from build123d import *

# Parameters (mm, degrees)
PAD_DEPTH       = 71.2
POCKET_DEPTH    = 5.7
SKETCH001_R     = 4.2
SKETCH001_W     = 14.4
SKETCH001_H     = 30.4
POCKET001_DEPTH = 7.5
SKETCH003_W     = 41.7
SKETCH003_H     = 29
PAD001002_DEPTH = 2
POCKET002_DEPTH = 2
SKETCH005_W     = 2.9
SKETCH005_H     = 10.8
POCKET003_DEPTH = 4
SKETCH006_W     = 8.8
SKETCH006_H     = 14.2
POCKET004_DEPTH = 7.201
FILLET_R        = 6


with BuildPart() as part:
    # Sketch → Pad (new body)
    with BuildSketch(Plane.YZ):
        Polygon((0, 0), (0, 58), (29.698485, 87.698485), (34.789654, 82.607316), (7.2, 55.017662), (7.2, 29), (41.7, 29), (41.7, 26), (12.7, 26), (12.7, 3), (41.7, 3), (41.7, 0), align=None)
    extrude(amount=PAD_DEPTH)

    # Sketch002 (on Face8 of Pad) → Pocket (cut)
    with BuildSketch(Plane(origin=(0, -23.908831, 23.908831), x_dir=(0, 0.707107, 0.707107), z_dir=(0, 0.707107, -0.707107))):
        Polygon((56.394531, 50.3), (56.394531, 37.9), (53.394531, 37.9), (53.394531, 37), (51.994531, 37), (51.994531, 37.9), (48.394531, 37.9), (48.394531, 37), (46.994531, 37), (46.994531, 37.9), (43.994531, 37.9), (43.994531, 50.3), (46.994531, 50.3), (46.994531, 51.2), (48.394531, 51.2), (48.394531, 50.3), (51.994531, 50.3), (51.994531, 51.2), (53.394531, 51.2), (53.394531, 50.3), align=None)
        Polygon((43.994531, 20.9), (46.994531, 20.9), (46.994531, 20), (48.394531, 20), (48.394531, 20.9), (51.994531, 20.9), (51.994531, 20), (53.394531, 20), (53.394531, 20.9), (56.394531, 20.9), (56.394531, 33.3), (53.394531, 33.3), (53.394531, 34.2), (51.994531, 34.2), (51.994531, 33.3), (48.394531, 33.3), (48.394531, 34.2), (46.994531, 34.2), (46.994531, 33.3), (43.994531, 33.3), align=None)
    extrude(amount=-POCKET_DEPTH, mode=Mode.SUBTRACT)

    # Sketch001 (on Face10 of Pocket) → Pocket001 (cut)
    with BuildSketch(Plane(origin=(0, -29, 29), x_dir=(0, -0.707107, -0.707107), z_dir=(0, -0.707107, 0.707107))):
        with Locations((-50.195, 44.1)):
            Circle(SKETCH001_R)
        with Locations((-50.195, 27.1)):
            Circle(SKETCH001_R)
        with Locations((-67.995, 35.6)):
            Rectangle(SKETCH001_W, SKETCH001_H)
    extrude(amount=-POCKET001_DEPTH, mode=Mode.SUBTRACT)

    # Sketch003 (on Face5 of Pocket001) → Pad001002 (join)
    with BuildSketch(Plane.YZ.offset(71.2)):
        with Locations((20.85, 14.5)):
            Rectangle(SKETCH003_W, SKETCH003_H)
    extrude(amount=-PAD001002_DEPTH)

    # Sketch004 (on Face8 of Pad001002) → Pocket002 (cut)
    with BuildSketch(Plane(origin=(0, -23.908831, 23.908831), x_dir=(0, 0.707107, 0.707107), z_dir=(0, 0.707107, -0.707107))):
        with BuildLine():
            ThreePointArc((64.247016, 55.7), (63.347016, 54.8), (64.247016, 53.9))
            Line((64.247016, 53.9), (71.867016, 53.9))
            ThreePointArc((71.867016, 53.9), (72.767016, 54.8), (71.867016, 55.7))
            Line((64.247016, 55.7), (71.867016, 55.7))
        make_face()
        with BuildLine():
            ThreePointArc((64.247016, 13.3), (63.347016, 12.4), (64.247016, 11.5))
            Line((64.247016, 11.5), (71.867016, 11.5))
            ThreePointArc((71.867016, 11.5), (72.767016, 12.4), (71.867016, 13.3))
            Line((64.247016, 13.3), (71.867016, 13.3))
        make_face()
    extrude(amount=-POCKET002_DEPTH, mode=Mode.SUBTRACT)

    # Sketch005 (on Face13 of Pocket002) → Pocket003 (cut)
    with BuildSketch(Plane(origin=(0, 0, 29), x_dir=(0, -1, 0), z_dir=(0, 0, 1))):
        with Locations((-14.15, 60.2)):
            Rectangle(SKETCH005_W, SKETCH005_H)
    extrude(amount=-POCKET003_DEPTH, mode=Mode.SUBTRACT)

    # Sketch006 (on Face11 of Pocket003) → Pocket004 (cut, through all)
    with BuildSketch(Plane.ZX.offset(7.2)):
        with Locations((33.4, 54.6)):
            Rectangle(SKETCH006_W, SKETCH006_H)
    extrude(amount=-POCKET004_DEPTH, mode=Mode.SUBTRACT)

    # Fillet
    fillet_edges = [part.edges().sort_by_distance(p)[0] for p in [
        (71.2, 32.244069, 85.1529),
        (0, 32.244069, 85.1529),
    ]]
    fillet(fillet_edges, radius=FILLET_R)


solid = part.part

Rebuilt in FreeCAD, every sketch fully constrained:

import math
import FreeCAD as App
import Part
import Sketcher

V = App.Vector
Q = App.Units.Quantity


def edges_at(feature, points):
    """Names of the edges that pass closest to the given points."""
    edges = feature.Shape.Edges
    near = lambda p: min(range(len(edges)), key=lambda i: edges[i].distToShape(Part.Vertex(*p))[0])
    return sorted({f"Edge{near(p) + 1}" for p in points})


def add_polygon(sketch, points):
    """Adds a closed chain of lines whose ends are joined by coincident constraints."""
    first, n = sketch.GeometryCount, len(points)
    for a, b in zip(points, points[1:] + points[:1]):
        sketch.addGeometry(Part.LineSegment(App.Vector(*a, 0), App.Vector(*b, 0)), False)
    for i in range(n):
        sketch.addConstraint(Sketcher.Constraint("Coincident", first + i, 2, first + (i + 1) % n, 1))

doc = App.newDocument("Part")
body = doc.addObject("PartDesign::Body", "Body")

# Sketch on YZ plane
sketch1 = doc.addObject("Sketcher::SketchObject", "Sketch")
body.addObject(sketch1)
sketch1.AttachmentSupport = (doc.YZ_Plane, [""])
sketch1.MapMode = "FlatFace"
add_polygon(sketch1, [(0, 58), (0, 0), (41.7, 0), (41.7, 3), (12.7, 3), (12.7, 26), (41.7, 26), (41.7, 29), (7.2, 29), (7.2, 55), (34.8, 82.6), (29.7, 87.7)])  # lines 0-11
sketch1.addConstraint([
    Sketcher.Constraint("Vertical", 0),
    Sketcher.Constraint("Horizontal", 1),
    Sketcher.Constraint("Vertical", 2),
    Sketcher.Constraint("Horizontal", 3),
    Sketcher.Constraint("Vertical", 4),
    Sketcher.Constraint("Horizontal", 5),
    Sketcher.Constraint("Vertical", 6),
    Sketcher.Constraint("Horizontal", 7),
    Sketcher.Constraint("Vertical", 8),
    Sketcher.Constraint("Coincident", 0, 2, -1, 1),
    Sketcher.Constraint("Perpendicular", 9, 10),
    Sketcher.Constraint("Perpendicular", 10, 11),
    Sketcher.Constraint("Vertical", 2, 2, 5, 2),
    Sketcher.Constraint("Equal", 2, 6),
    Sketcher.Constraint("DistanceX", 3, 2, 3, 1, 29.0),
    Sketcher.Constraint("DistanceY", 0, 2, 0, 1, 58.0),
    Sketcher.Constraint("DistanceY", 2, 1, 2, 2, 3.0),
    Sketcher.Constraint("DistanceY", 4, 1, 4, 2, 23.0),
    Sketcher.Constraint("Angle", 9, Q("45 deg")),
    Sketcher.Constraint("Distance", 11, 42.0),
    Sketcher.Constraint("DistanceX", 1, 1, 1, 2, 41.7),
    Sketcher.Constraint("DistanceX", 7, 2, 7, 1, 34.5),
    Sketcher.Constraint("Distance", 10, 7.2),
])
pad1 = doc.addObject("PartDesign::Pad", "Pad")
body.addObject(pad1)
pad1.Profile = sketch1
pad1.Length = 71.2

# Sketch on an angled plane
sketch2 = doc.addObject("Sketcher::SketchObject", "Sketch001")
body.addObject(sketch2)
sketch2.Placement = App.Placement(V(0, -23.908831, 23.908831), App.Rotation(V(0, 0.707106781, 0.707106781), V(0.999999999, 0, 0), V(0, 0.707106781, -0.707106781), "ZXY"))
add_polygon(sketch2, [(56.4, 37.9), (56.4, 50.3), (53.4, 50.3), (53.4, 51.2), (52, 51.2), (52, 50.3), (48.4, 50.3), (48.4, 51.2), (47, 51.2), (47, 50.3), (44, 50.3), (44, 37.9), (47, 37.9), (47, 37), (48.4, 37), (48.4, 37.9), (52, 37.9), (52, 37), (53.4, 37), (53.4, 37.9)])  # lines 0-19
add_polygon(sketch2, [(44, 20.9), (47, 20.9), (47, 20), (48.4, 20), (48.4, 20.9), (52, 20.9), (52, 20), (53.4, 20), (53.4, 20.9), (56.4, 20.9), (56.4, 33.3), (53.4, 33.3), (53.4, 34.2), (52, 34.2), (52, 33.3), (48.4, 33.3), (48.4, 34.2), (47, 34.2), (47, 33.3), (44, 33.3)])  # lines 20-39
sketch2.addConstraint([
    Sketcher.Constraint("Vertical", 0),
    Sketcher.Constraint("Horizontal", 1),
    Sketcher.Constraint("Vertical", 2),
    Sketcher.Constraint("Horizontal", 3),
    Sketcher.Constraint("Vertical", 4),
    Sketcher.Constraint("Horizontal", 5),
    Sketcher.Constraint("Vertical", 6),
    Sketcher.Constraint("Horizontal", 7),
    Sketcher.Constraint("Vertical", 8),
    Sketcher.Constraint("Horizontal", 9),
    Sketcher.Constraint("Vertical", 10),
    Sketcher.Constraint("Horizontal", 11),
    Sketcher.Constraint("Vertical", 12),
    Sketcher.Constraint("Horizontal", 13),
    Sketcher.Constraint("Vertical", 14),
    Sketcher.Constraint("Horizontal", 15),
    Sketcher.Constraint("Vertical", 16),
    Sketcher.Constraint("Horizontal", 17),
    Sketcher.Constraint("Vertical", 18),
    Sketcher.Constraint("Horizontal", 19),
    Sketcher.Constraint("Horizontal", 20),
    Sketcher.Constraint("Vertical", 21),
    Sketcher.Constraint("Horizontal", 22),
    Sketcher.Constraint("Vertical", 23),
    Sketcher.Constraint("Horizontal", 24),
    Sketcher.Constraint("Vertical", 25),
    Sketcher.Constraint("Horizontal", 26),
    Sketcher.Constraint("Vertical", 27),
    Sketcher.Constraint("Horizontal", 28),
    Sketcher.Constraint("Vertical", 29),
    Sketcher.Constraint("Horizontal", 30),
    Sketcher.Constraint("Vertical", 31),
    Sketcher.Constraint("Horizontal", 32),
    Sketcher.Constraint("Vertical", 33),
    Sketcher.Constraint("Horizontal", 34),
    Sketcher.Constraint("Vertical", 35),
    Sketcher.Constraint("Horizontal", 36),
    Sketcher.Constraint("Vertical", 37),
    Sketcher.Constraint("Horizontal", 38),
    Sketcher.Constraint("Vertical", 39),
    Sketcher.Constraint("Horizontal", 1, 2, 4, 2),
    Sketcher.Constraint("Horizontal", 3, 2, 6, 2),
    Sketcher.Constraint("Horizontal", 5, 2, 8, 2),
    Sketcher.Constraint("Horizontal", 11, 2, 14, 2),
    Sketcher.Constraint("Horizontal", 13, 2, 16, 2),
    Sketcher.Constraint("Horizontal", 15, 2, 18, 2),
    Sketcher.Constraint("Horizontal", 20, 2, 23, 2),
    Sketcher.Constraint("Horizontal", 22, 2, 25, 2),
    Sketcher.Constraint("Horizontal", 24, 2, 27, 2),
    Sketcher.Constraint("Horizontal", 30, 2, 33, 2),
    Sketcher.Constraint("Horizontal", 32, 2, 35, 2),
    Sketcher.Constraint("Horizontal", 34, 2, 37, 2),
    Sketcher.Constraint("Vertical", 8, 2, 11, 2),
    Sketcher.Constraint("Vertical", 6, 2, 13, 2),
    Sketcher.Constraint("Vertical", 4, 2, 15, 2),
    Sketcher.Constraint("Vertical", 2, 2, 17, 2),
    Sketcher.Constraint("Vertical", 12, 2, 20, 2),
    Sketcher.Constraint("Vertical", 14, 2, 22, 2),
    Sketcher.Constraint("Vertical", 16, 2, 24, 2),
    Sketcher.Constraint("Vertical", 18, 2, 26, 2),
    Sketcher.Constraint("Vertical", 19, 2, 28, 2),
    Sketcher.Constraint("Vertical", 27, 2, 30, 2),
    Sketcher.Constraint("Vertical", 25, 2, 32, 2),
    Sketcher.Constraint("Vertical", 23, 2, 34, 2),
    Sketcher.Constraint("Vertical", 21, 2, 36, 2),
    Sketcher.Constraint("Vertical", 10, 2, 38, 2),
    Sketcher.Constraint("Equal", 3, 7),
    Sketcher.Constraint("Equal", 1, 9),
    Sketcher.Constraint("Equal", 8, 12),
    Sketcher.Constraint("Equal", 18, 21),
    Sketcher.Constraint("Equal", 10, 29),
    Sketcher.Constraint("Equal", 27, 31),
    Sketcher.Constraint("DistanceX", 1, 2, 1, 1, 3.0),
    Sketcher.Constraint("DistanceX", 3, 2, 3, 1, 1.4),
    Sketcher.Constraint("DistanceX", 5, 2, 5, 1, 3.6),
    Sketcher.Constraint("DistanceY", 0, 1, 0, 2, 12.4),
    Sketcher.Constraint("DistanceY", 2, 1, 2, 2, 0.9),
    Sketcher.Constraint("DistanceY", -1, 1, 12, 2, 37.0),
    Sketcher.Constraint("DistanceY", -1, 1, 21, 2, 20.0),
    Sketcher.Constraint("DistanceX", -1, 1, 0, 2, 56.394531),
])
pocket1 = doc.addObject("PartDesign::Pocket", "Pocket")
body.addObject(pocket1)
pocket1.Profile = sketch2
pocket1.Length = 5.7

# Sketch on an angled plane
sketch3 = doc.addObject("Sketcher::SketchObject", "Sketch002")
body.addObject(sketch3)
sketch3.Placement = App.Placement(V(0, -29, 29), App.Rotation(V(0, -0.707106781, -0.707106781), V(0.999999999, 0, 0), V(0, -0.707106781, 0.707106781), "ZXY"))
sketch3.addGeometry(Part.Circle(V(-50.2, 44.1, 0), V(0, 0, 1), 4.2), False)  # 0
sketch3.addGeometry(Part.Circle(V(-50.2, 27.1, 0), V(0, 0, 1), 4.2), False)  # 1
add_polygon(sketch3, [(-75.2, 50.8), (-75.2, 20.4), (-60.8, 20.4), (-60.8, 50.8)])  # lines 2-5
sketch3.addConstraint([
    Sketcher.Constraint("Vertical", 2),
    Sketcher.Constraint("Horizontal", 3),
    Sketcher.Constraint("Vertical", 4),
    Sketcher.Constraint("Horizontal", 5),
    Sketcher.Constraint("Equal", 0, 1),
    Sketcher.Constraint("Vertical", 0, 3, 1, 3),
    Sketcher.Constraint("Diameter", 0, 8.4),
    Sketcher.Constraint("DistanceX", 3, 1, 3, 2, 14.4),
    Sketcher.Constraint("DistanceY", 2, 2, 2, 1, 30.4),
    Sketcher.Constraint("DistanceY", 1, 3, 0, 3, 17.0),
    Sketcher.Constraint("DistanceX", 2, 2, 1, 3, 25.0),
    Sketcher.Constraint("DistanceY", -1, 1, 0, 3, 44.1),
    Sketcher.Constraint("DistanceY", -1, 1, 2, 2, 20.4),
    Sketcher.Constraint("DistanceX", 0, 3, -1, 1, 50.195),
])
pocket2 = doc.addObject("PartDesign::Pocket", "Pocket001")
body.addObject(pocket2)
pocket2.Profile = sketch3
pocket2.Length = 7.5

# Sketch on YZ plane
sketch4 = doc.addObject("Sketcher::SketchObject", "Sketch003")
body.addObject(sketch4)
sketch4.AttachmentSupport = (doc.YZ_Plane, [""])
sketch4.MapMode = "FlatFace"
sketch4.AttachmentOffset = App.Placement(V(0, 0, 71.2), App.Rotation())
add_polygon(sketch4, [(0, 29), (0, 0), (42, 0), (42, 29)])  # lines 0-3
sketch4.addConstraint([
    Sketcher.Constraint("Vertical", 0),
    Sketcher.Constraint("Horizontal", 1),
    Sketcher.Constraint("Vertical", 2),
    Sketcher.Constraint("Horizontal", 3),
    Sketcher.Constraint("Coincident", 0, 2, -1, 1),
    Sketcher.Constraint("DistanceY", 0, 2, 0, 1, 29.0),
    Sketcher.Constraint("DistanceX", 1, 1, 1, 2, 41.7),
])
pad2 = doc.addObject("PartDesign::Pad", "Pad001")
body.addObject(pad2)
pad2.Profile = sketch4
pad2.Length = 2
pad2.Reversed = True

# Sketch on an angled plane
sketch5 = doc.addObject("Sketcher::SketchObject", "Sketch004")
body.addObject(sketch5)
sketch5.Placement = App.Placement(V(0, -23.908831, 23.908831), App.Rotation(V(0, 0.707106781, 0.707106781), V(0.999999999, 0, 0), V(0, 0.707106781, -0.707106781), "ZXY"))
sketch5.addGeometry([
    Part.ArcOfCircle(Part.Circle(V(64.2, 54.8, 0), V(0, 0, 1), 0.9), math.radians(90), math.radians(270)),  # 0
    Part.LineSegment(V(64.2, 53.9, 0), V(71.9, 53.9, 0)),  # 1
    Part.ArcOfCircle(Part.Circle(V(71.9, 54.8, 0), V(0, 0, 1), 0.9), math.radians(-90), math.radians(90)),  # 2
    Part.LineSegment(V(71.9, 55.7, 0), V(64.2, 55.7, 0)),  # 3
    Part.ArcOfCircle(Part.Circle(V(64.2, 12.4, 0), V(0, 0, 1), 0.9), math.radians(90), math.radians(270)),  # 4
    Part.LineSegment(V(64.2, 11.5, 0), V(71.9, 11.5, 0)),  # 5
    Part.ArcOfCircle(Part.Circle(V(71.9, 12.4, 0), V(0, 0, 1), 0.9), math.radians(-90), math.radians(90)),  # 6
    Part.LineSegment(V(71.9, 13.3, 0), V(64.2, 13.3, 0)),  # 7
], False)
sketch5.addConstraint([
    Sketcher.Constraint("Tangent", 0, 2, 1, 1),
    Sketcher.Constraint("Tangent", 1, 2, 2, 1),
    Sketcher.Constraint("Tangent", 2, 2, 3, 1),
    Sketcher.Constraint("Tangent", 3, 2, 0, 1),
    Sketcher.Constraint("Tangent", 4, 2, 5, 1),
    Sketcher.Constraint("Tangent", 5, 2, 6, 1),
    Sketcher.Constraint("Tangent", 6, 2, 7, 1),
    Sketcher.Constraint("Tangent", 7, 2, 4, 1),
    Sketcher.Constraint("Horizontal", 1),
    Sketcher.Constraint("Horizontal", 3),
    Sketcher.Constraint("Horizontal", 5),
    Sketcher.Constraint("Horizontal", 7),
    Sketcher.Constraint("Equal", 2, 4),
    Sketcher.Constraint("Vertical", 0, 3, 4, 3),
    Sketcher.Constraint("Vertical", 2, 3, 6, 3),
    Sketcher.Constraint("Radius", 0, 0.9),
    Sketcher.Constraint("DistanceX", 1, 1, 1, 2, 7.62),
    Sketcher.Constraint("DistanceY", -1, 1, 0, 3, 54.8),
    Sketcher.Constraint("DistanceY", -1, 1, 4, 3, 12.4),
    Sketcher.Constraint("DistanceX", -1, 1, 0, 3, 64.247016),
])
pocket3 = doc.addObject("PartDesign::Pocket", "Pocket002")
body.addObject(pocket3)
pocket3.Profile = sketch5
pocket3.Length = 2

# Sketch on XY plane
sketch6 = doc.addObject("Sketcher::SketchObject", "Sketch005")
body.addObject(sketch6)
sketch6.AttachmentSupport = (doc.XY_Plane, [""])
sketch6.MapMode = "FlatFace"
sketch6.AttachmentOffset = App.Placement(V(0, 0, 29), App.Rotation())
add_polygon(sketch6, [(65.6, 15.6), (54.8, 15.6), (54.8, 12.7), (65.6, 12.7)])  # lines 0-3
sketch6.addConstraint([
    Sketcher.Constraint("Horizontal", 0),
    Sketcher.Constraint("Vertical", 1),
    Sketcher.Constraint("Horizontal", 2),
    Sketcher.Constraint("Vertical", 3),
    Sketcher.Constraint("DistanceX", 0, 2, 0, 1, 10.8),
    Sketcher.Constraint("DistanceY", 1, 2, 1, 1, 2.9),
    Sketcher.Constraint("DistanceX", -1, 1, 0, 2, 54.8),
    Sketcher.Constraint("DistanceY", -1, 1, 0, 2, 15.6),
])
pocket4 = doc.addObject("PartDesign::Pocket", "Pocket003")
body.addObject(pocket4)
pocket4.Profile = sketch6
pocket4.Length = 4

# Sketch on XZ plane
sketch7 = doc.addObject("Sketcher::SketchObject", "Sketch006")
body.addObject(sketch7)
sketch7.AttachmentSupport = (doc.XZ_Plane, [""])
sketch7.MapMode = "FlatFace"
sketch7.AttachmentOffset = App.Placement(V(0, 0, -7.2), App.Rotation())
add_polygon(sketch7, [(62, 29), (48, 29), (48, 38), (62, 38)])  # lines 0-3
sketch7.addConstraint([
    Sketcher.Constraint("Horizontal", 0),
    Sketcher.Constraint("Vertical", 1),
    Sketcher.Constraint("Horizontal", 2),
    Sketcher.Constraint("Vertical", 3),
    Sketcher.Constraint("DistanceX", 0, 2, 0, 1, 14.2),
    Sketcher.Constraint("DistanceY", 1, 1, 1, 2, 8.8),
    Sketcher.Constraint("DistanceY", -1, 1, 0, 2, 29.0),
    Sketcher.Constraint("DistanceX", -1, 1, 0, 2, 47.5),
])
pocket5 = doc.addObject("PartDesign::Pocket", "Pocket004")
body.addObject(pocket5)
pocket5.Profile = sketch7
pocket5.Type = "ThroughAll"
pocket5.Reversed = True
doc.recompute()

fillet = doc.addObject("PartDesign::Fillet", "Fillet")
body.addObject(fillet)
fillet.Base = (pocket5, edges_at(pocket5, [(71.2, 32.244, 85.153), (0, 32.244, 85.153)]))
fillet.Radius = 6

doc.recompute()
